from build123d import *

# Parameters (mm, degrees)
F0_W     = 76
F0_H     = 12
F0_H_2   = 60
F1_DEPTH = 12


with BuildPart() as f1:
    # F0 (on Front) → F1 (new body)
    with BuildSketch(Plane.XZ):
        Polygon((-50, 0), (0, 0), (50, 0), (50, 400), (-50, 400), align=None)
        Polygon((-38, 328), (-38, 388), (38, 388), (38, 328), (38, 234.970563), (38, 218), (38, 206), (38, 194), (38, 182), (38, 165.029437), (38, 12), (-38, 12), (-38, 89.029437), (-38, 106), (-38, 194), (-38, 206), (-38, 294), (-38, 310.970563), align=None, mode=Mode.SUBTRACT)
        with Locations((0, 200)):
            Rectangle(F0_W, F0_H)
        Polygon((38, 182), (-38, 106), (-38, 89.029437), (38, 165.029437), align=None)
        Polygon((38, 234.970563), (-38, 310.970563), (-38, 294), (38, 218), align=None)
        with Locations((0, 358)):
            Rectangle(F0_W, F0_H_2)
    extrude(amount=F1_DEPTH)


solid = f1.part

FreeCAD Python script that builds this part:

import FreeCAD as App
import Part
import Sketcher
from FreeCAD import Vector


def add_polygon(sketch, points):
    """Adds a closed chain of lines whose ends are joined by coincident constraints."""
    first, n = sketch.GeometryCount, len(points)
    for a, b in zip(points, points[1:] + points[:1]):
        sketch.addGeometry(Part.LineSegment(App.Vector(*a, 0), App.Vector(*b, 0)), False)
    for i in range(n):
        sketch.addConstraint(Sketcher.Constraint("Coincident", first + i, 2, first + (i + 1) % n, 1))

doc = App.newDocument("Part")
body = doc.addObject("PartDesign::Body", "Body")

# Sketch on XZ plane
sketch1 = body.newObject("Sketcher::SketchObject", "Sketch")
sketch1.AttachmentSupport = (doc.getObject("XZ_Plane"), [""])
sketch1.MapMode = "FlatFace"
add_polygon(sketch1, [(-50, 0), (50, 0), (50, 400), (-50, 400)])  # lines 0-3
add_polygon(sketch1, [(-38, 12), (-38, 89), (38, 165), (38, 12)])  # lines 4-7
add_polygon(sketch1, [(-38, 106), (-38, 194), (38, 194), (38, 182)])  # lines 8-11
add_polygon(sketch1, [(-38, 206), (-38, 294), (38, 218), (38, 206)])  # lines 12-15
add_polygon(sketch1, [(-38, 311), (-38, 328), (38, 328), (38, 235)])  # lines 16-19
sketch1.addConstraint(Sketcher.Constraint("Horizontal", 0))
sketch1.addConstraint(Sketcher.Constraint("Vertical", 1))
sketch1.addConstraint(Sketcher.Constraint("Horizontal", 2))
sketch1.addConstraint(Sketcher.Constraint("Vertical", 3))
sketch1.addConstraint(Sketcher.Constraint("Vertical", 4))
sketch1.addConstraint(Sketcher.Constraint("Vertical", 6))
sketch1.addConstraint(Sketcher.Constraint("Horizontal", 7))
sketch1.addConstraint(Sketcher.Constraint("Vertical", 8))
sketch1.addConstraint(Sketcher.Constraint("Horizontal", 9))
sketch1.addConstraint(Sketcher.Constraint("Vertical", 10))
sketch1.addConstraint(Sketcher.Constraint("Vertical", 12))
sketch1.addConstraint(Sketcher.Constraint("Vertical", 14))
sketch1.addConstraint(Sketcher.Constraint("Horizontal", 15))
sketch1.addConstraint(Sketcher.Constraint("Vertical", 16))
sketch1.addConstraint(Sketcher.Constraint("Horizontal", 17))
sketch1.addConstraint(Sketcher.Constraint("Vertical", 18))
sketch1.addConstraint(Sketcher.Constraint("Symmetric", 0, 2, 3, 2, -1, 1))
sketch1.addConstraint(Sketcher.Constraint("Parallel", 5, 11))
sketch1.addConstraint(Sketcher.Constraint("Perpendicular", 11, 13))
sketch1.addConstraint(Sketcher.Constraint("Parallel", 13, 19))
sketch1.addConstraint(Sketcher.Constraint("Vertical", 7, 2, 8, 2))
sketch1.addConstraint(Sketcher.Constraint("Vertical", 6, 2, 9, 2))
sketch1.addConstraint(Sketcher.Constraint("Vertical", 11, 2, 12, 2))
sketch1.addConstraint(Sketcher.Constraint("Vertical", 10, 2, 13, 2))
sketch1.addConstraint(Sketcher.Constraint("Vertical", 15, 2, 16, 2))
sketch1.addConstraint(Sketcher.Constraint("Vertical", 14, 2, 17, 2))
sketch1.addConstraint(Sketcher.Constraint("Equal", 8, 12))
sketch1.addConstraint(Sketcher.Constraint("Equal", 10, 14))
sketch1.addConstraint(Sketcher.Constraint("DistanceX", 0, 1, 0, 2, 100.0))
sketch1.addConstraint(Sketcher.Constraint("DistanceX", 7, 2, 7, 1, 76.0))
sketch1.addConstraint(Sketcher.Constraint("DistanceY", 1, 1, 1, 2, 400.0))
sketch1.addConstraint(Sketcher.Constraint("DistanceY", 8, 1, 8, 2, 88.0))
sketch1.addConstraint(Sketcher.Constraint("DistanceX", 4, 2, -1, 1, 38.0))
sketch1.addConstraint(Sketcher.Constraint("DistanceY", -1, 1, 6, 2, 12.0))
sketch1.addConstraint(Sketcher.Constraint("DistanceY", -1, 1, 8, 2, 194.0))
sketch1.addConstraint(Sketcher.Constraint("DistanceY", -1, 1, 12, 2, 294.0))
sketch1.addConstraint(Sketcher.Constraint("DistanceY", -1, 1, 16, 2, 328.0))
sketch1.addConstraint(Sketcher.Constraint("DistanceY", 4, 1, 4, 2, 77.029437))
sketch1.addConstraint(Sketcher.Constraint("DistanceY", 16, 1, 16, 2, 17.029437))
pad1 = body.newObject("PartDesign::Pad", "Pad")
pad1.Profile = sketch1
pad1.Length = 12

doc.recompute()
